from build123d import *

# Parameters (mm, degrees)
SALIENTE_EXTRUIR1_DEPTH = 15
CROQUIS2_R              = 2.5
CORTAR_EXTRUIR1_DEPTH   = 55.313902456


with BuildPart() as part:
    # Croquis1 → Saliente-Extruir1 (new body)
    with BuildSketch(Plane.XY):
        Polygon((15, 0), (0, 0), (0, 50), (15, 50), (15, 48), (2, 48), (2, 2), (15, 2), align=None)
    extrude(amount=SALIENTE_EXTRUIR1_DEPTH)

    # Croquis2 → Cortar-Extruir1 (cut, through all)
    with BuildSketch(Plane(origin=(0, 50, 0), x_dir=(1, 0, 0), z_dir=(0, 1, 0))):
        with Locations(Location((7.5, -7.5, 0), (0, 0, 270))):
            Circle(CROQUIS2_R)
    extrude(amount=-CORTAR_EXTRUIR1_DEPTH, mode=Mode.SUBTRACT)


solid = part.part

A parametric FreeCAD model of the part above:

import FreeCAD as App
import Part
import Sketcher
from FreeCAD import Vector


def add_polygon(sketch, points):
    """Adds a closed chain of lines whose ends are joined by coincident constraints."""
    first, n = sketch.GeometryCount, len(points)
    for a, b in zip(points, points[1:] + points[:1]):
        sketch.addGeometry(Part.LineSegment(App.Vector(*a, 0), App.Vector(*b, 0)), False)
    for i in range(n):
        sketch.addConstraint(Sketcher.Constraint("Coincident", first + i, 2, first + (i + 1) % n, 1))

doc = App.newDocument("Part")
body = doc.addObject("PartDesign::Body", "Body")

# Sketch on XY plane
sketch1 = body.newObject("Sketcher::SketchObject", "Sketch")
sketch1.AttachmentSupport = (doc.getObject("XY_Plane"), [""])
sketch1.MapMode = "FlatFace"
add_polygon(sketch1, [(0, 0), (15, 0), (15, 2), (2, 2), (2, 48), (15, 48), (15, 50), (0, 50)])  # lines 0-7
sketch1.addConstraint([
    Sketcher.Constraint("Horizontal", 0),
    Sketcher.Constraint("Vertical", 1),
    Sketcher.Constraint("Horizontal", 2),
    Sketcher.Constraint("Vertical", 3),
    Sketcher.Constraint("Horizontal", 4),
    Sketcher.Constraint("Vertical", 5),
    Sketcher.Constraint("Horizontal", 6),
    Sketcher.Constraint("Vertical", 7),
    Sketcher.Constraint("Coincident", 7, 2, -1, 1),
    Sketcher.Constraint("Vertical", 1, 2, 4, 2),
    Sketcher.Constraint("Equal", 1, 5),
    Sketcher.Constraint("DistanceX", 0, 1, 0, 2, 15.0),
    Sketcher.Constraint("DistanceX", 2, 2, 2, 1, 13.0),
    Sketcher.Constraint("DistanceY", 1, 1, 1, 2, 2.0),
    Sketcher.Constraint("DistanceY", 3, 1, 3, 2, 46.0),
])
pad1 = body.newObject("PartDesign::Pad", "Pad")
pad1.Profile = sketch1
pad1.Length = 15

# Sketch on XZ plane
sketch2 = body.newObject("Sketcher::SketchObject", "Sketch001")
sketch2.AttachmentSupport = (doc.getObject("XZ_Plane"), [""])
sketch2.MapMode = "FlatFace"
sketch2.AttachmentOffset = App.Placement(Vector(0, 0, -50), App.Rotation())
sketch2.addGeometry(Part.Circle(Vector(7.5, 7.5, 0), Vector(0, 0, 1), 2.5), False)
sketch2.addConstraint([
    Sketcher.Constraint("Diameter", 0, 5.0),
    Sketcher.Constraint("DistanceX", -1, 1, 0, 3, 7.5),
    Sketcher.Constraint("DistanceY", -1, 1, 0, 3, 7.5),
])
pocket1 = body.newObject("PartDesign::Pocket", "Pocket")
pocket1.Profile = sketch2
pocket1.Type = "ThroughAll"
pocket1.Reversed = True

doc.recompute()
